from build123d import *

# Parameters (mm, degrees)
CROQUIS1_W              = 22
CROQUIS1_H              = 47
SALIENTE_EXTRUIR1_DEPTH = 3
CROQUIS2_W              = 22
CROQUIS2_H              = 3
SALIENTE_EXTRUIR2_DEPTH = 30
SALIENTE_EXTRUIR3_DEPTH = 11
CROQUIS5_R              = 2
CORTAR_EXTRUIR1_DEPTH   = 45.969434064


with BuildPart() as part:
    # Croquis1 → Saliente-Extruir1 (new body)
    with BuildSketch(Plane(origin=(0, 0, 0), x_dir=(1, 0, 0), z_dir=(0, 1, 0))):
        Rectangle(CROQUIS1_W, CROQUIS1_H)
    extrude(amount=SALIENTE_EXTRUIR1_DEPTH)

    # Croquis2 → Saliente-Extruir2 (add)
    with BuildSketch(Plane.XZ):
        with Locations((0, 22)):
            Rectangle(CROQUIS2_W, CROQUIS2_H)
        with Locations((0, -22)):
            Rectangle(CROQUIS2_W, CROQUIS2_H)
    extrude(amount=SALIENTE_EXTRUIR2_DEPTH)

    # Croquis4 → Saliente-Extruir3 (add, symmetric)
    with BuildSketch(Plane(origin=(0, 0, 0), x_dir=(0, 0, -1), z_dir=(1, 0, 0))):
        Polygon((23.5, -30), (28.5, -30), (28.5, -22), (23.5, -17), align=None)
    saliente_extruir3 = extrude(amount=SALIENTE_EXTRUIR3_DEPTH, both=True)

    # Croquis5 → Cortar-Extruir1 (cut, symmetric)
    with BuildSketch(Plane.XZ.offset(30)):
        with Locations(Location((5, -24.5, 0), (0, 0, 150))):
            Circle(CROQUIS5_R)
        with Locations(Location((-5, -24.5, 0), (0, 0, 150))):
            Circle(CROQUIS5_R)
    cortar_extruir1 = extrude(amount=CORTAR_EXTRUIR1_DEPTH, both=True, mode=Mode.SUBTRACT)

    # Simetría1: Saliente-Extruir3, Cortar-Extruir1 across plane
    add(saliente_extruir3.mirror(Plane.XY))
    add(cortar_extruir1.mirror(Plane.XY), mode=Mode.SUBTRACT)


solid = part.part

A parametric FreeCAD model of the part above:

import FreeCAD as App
import Part
import Sketcher
from FreeCAD import Vector
Q = App.Units.Quantity


def add_polygon(sketch, points):
    """Adds a closed chain of lines whose ends are joined by coincident constraints."""
    first, n = sketch.GeometryCount, len(points)
    for a, b in zip(points, points[1:] + points[:1]):
        sketch.addGeometry(Part.LineSegment(App.Vector(*a, 0), App.Vector(*b, 0)), False)
    for i in range(n):
        sketch.addConstraint(Sketcher.Constraint("Coincident", first + i, 2, first + (i + 1) % n, 1))

doc = App.newDocument("Part")
params = doc.addObject("Spreadsheet::Sheet", "Params")
for row, (alias, value) in enumerate([
    ("sketch1_width", "22 mm"),
    ("sketch1_height", "47 mm"),
    ("pad1_length", "3 mm"),
    ("sketch2_width", "22 mm"),
    ("sketch2_height", "3 mm"),
    ("pad2_length", "30 mm"),
    ("sketch3_width", "8 mm"),
    ("sketch3_width2", "13 mm"),
    ("sketch3_height", "5 mm"),
    ("pad3_length", "22 mm"),
    ("sketch4_diameter", "4 mm"),
    ("pocket1_length", "91.938868 mm"),
], start=1):
    params.set(f"A{row}", alias)
    params.set(f"B{row}", "=" + value)
    params.setAlias(f"B{row}", alias)

body = doc.addObject("PartDesign::Body", "Body")

sketch1 = doc.addObject("Sketcher::SketchObject", "Sketch")
body.addObject(sketch1)
sketch1.AttachmentSupport = (doc.XZ_Plane, [""])
sketch1.MapMode = "FlatFace"
add_polygon(sketch1, [(-11, -23.5), (-11, 23.5), (11, 23.5), (11, -23.5)])
sketch1.addConstraint(Sketcher.Constraint("Vertical", 0))
sketch1.addConstraint(Sketcher.Constraint("Horizontal", 1))
sketch1.addConstraint(Sketcher.Constraint("Vertical", 2))
sketch1.addConstraint(Sketcher.Constraint("Horizontal", 3))
sketch1.addConstraint(Sketcher.Constraint("Symmetric", 0, 2, 2, 2, -1, 1))
sketch1.addConstraint(Sketcher.Constraint("DistanceX", 1, 1, 1, 2, Q("22 mm")))
sketch1.addConstraint(Sketcher.Constraint("DistanceY", 0, 1, 0, 2, Q("47 mm")))
sketch1.setExpression("Constraints[9]", "Params.sketch1_width")
sketch1.setExpression("Constraints[10]", "Params.sketch1_height")
pad1 = doc.addObject("PartDesign::Pad", "Pad")
body.addObject(pad1)
pad1.Profile = sketch1
pad1.setExpression("Length", "Params.pad1_length")
pad1.Reversed = True

sketch2 = doc.addObject("Sketcher::SketchObject", "Sketch001")
body.addObject(sketch2)
sketch2.AttachmentSupport = (doc.XZ_Plane, [""])
sketch2.MapMode = "FlatFace"
add_polygon(sketch2, [(-11, 23.5), (-11, 20.5), (11, 20.5), (11, 23.5)])
add_polygon(sketch2, [(-11, -20.5), (-11, -23.5), (11, -23.5), (11, -20.5)])
sketch2.addConstraint(Sketcher.Constraint("Vertical", 0))
sketch2.addConstraint(Sketcher.Constraint("Horizontal", 1))
sketch2.addConstraint(Sketcher.Constraint("Vertical", 2))
sketch2.addConstraint(Sketcher.Constraint("Horizontal", 3))
sketch2.addConstraint(Sketcher.Constraint("Vertical", 4))
sketch2.addConstraint(Sketcher.Constraint("Horizontal", 5))
sketch2.addConstraint(Sketcher.Constraint("Vertical", 6))
sketch2.addConstraint(Sketcher.Constraint("Horizontal", 7))
sketch2.addConstraint(Sketcher.Constraint("Symmetric", 2, 2, 4, 2, -1, 1))
sketch2.addConstraint(Sketcher.Constraint("Symmetric", 0, 2, 6, 2, -1, 1))
sketch2.addConstraint(Sketcher.Constraint("Vertical", 3, 2, 4, 2))
sketch2.addConstraint(Sketcher.Constraint("DistanceX", 1, 1, 1, 2, Q("22 mm")))
sketch2.addConstraint(Sketcher.Constraint("DistanceY", 0, 2, 0, 1, Q("3 mm")))
sketch2.addConstraint(Sketcher.Constraint("DistanceY", 4, 2, 0, 2, Q("44 mm")))
sketch2.setExpression("Constraints[19]", "Params.sketch2_width")
sketch2.setExpression("Constraints[20]", "Params.sketch2_height")
pad2 = doc.addObject("PartDesign::Pad", "Pad001")
body.addObject(pad2)
pad2.Profile = sketch2
pad2.setExpression("Length", "Params.pad2_length")

sketch3 = doc.addObject("Sketcher::SketchObject", "Sketch002")
body.addObject(sketch3)
sketch3.AttachmentSupport = (doc.YZ_Plane, [""])
sketch3.MapMode = "FlatFace"
add_polygon(sketch3, [(-30, -23.5), (-30, -28.5), (-22, -28.5), (-17, -23.5)])
sketch3.addConstraint(Sketcher.Constraint("Vertical", 0))
sketch3.addConstraint(Sketcher.Constraint("Horizontal", 1))
sketch3.addConstraint(Sketcher.Constraint("Horizontal", 3))
sketch3.addConstraint(Sketcher.Constraint("DistanceX", 1, 1, 1, 2, Q("8 mm")))
sketch3.addConstraint(Sketcher.Constraint("DistanceX", 3, 2, 3, 1, Q("13 mm")))
sketch3.addConstraint(Sketcher.Constraint("DistanceY", 0, 2, 0, 1, Q("5 mm")))
sketch3.addConstraint(Sketcher.Constraint("DistanceX", 0, 2, -1, 1, Q("30 mm")))
sketch3.addConstraint(Sketcher.Constraint("DistanceY", 0, 2, -1, 1, Q("28.5 mm")))
sketch3.setExpression("Constraints[7]", "Params.sketch3_width")
sketch3.setExpression("Constraints[8]", "Params.sketch3_width2")
sketch3.setExpression("Constraints[9]", "Params.sketch3_height")
pad3 = doc.addObject("PartDesign::Pad", "Pad002")
body.addObject(pad3)
pad3.Profile = sketch3
pad3.setExpression("Length", "Params.pad3_length")
pad3.Midplane = True

sketch4 = doc.addObject("Sketcher::SketchObject", "Sketch003")
body.addObject(sketch4)
sketch4.AttachmentSupport = (doc.XZ_Plane, [""])
sketch4.MapMode = "FlatFace"
sketch4.AttachmentOffset = App.Placement(Vector(0, 0, 30), App.Rotation())
sketch4.addGeometry(Part.Circle(Vector(5, -24.5, 0), Vector(0, 0, 1), 2), False)
sketch4.addGeometry(Part.Circle(Vector(-5, -24.5, 0), Vector(0, 0, 1), 2), False)
sketch4.addConstraint(Sketcher.Constraint("Equal", 0, 1))
sketch4.addConstraint(Sketcher.Constraint("Symmetric", 0, 3, 1, 3, -2))
sketch4.addConstraint(Sketcher.Constraint("Diameter", 0, Q("4 mm")))
sketch4.addConstraint(Sketcher.Constraint("DistanceX", -1, 1, 0, 3, Q("5 mm")))
sketch4.addConstraint(Sketcher.Constraint("DistanceY", 0, 3, -1, 1, Q("24.5 mm")))
sketch4.setExpression("Constraints[2]", "Params.sketch4_diameter")
pocket1 = doc.addObject("PartDesign::Pocket", "Pocket")
body.addObject(pocket1)
pocket1.Profile = sketch4
pocket1.setExpression("Length", "Params.pocket1_length")
pocket1.Midplane = True
doc.recompute()

mirrored = doc.addObject("PartDesign::Mirrored", "Mirrored")
body.addObject(mirrored)
mirrored.Originals = [pad3, pocket1]
mirrored.MirrorPlane = (doc.XY_Plane, [""])
body.Tip = mirrored

doc.recompute()
